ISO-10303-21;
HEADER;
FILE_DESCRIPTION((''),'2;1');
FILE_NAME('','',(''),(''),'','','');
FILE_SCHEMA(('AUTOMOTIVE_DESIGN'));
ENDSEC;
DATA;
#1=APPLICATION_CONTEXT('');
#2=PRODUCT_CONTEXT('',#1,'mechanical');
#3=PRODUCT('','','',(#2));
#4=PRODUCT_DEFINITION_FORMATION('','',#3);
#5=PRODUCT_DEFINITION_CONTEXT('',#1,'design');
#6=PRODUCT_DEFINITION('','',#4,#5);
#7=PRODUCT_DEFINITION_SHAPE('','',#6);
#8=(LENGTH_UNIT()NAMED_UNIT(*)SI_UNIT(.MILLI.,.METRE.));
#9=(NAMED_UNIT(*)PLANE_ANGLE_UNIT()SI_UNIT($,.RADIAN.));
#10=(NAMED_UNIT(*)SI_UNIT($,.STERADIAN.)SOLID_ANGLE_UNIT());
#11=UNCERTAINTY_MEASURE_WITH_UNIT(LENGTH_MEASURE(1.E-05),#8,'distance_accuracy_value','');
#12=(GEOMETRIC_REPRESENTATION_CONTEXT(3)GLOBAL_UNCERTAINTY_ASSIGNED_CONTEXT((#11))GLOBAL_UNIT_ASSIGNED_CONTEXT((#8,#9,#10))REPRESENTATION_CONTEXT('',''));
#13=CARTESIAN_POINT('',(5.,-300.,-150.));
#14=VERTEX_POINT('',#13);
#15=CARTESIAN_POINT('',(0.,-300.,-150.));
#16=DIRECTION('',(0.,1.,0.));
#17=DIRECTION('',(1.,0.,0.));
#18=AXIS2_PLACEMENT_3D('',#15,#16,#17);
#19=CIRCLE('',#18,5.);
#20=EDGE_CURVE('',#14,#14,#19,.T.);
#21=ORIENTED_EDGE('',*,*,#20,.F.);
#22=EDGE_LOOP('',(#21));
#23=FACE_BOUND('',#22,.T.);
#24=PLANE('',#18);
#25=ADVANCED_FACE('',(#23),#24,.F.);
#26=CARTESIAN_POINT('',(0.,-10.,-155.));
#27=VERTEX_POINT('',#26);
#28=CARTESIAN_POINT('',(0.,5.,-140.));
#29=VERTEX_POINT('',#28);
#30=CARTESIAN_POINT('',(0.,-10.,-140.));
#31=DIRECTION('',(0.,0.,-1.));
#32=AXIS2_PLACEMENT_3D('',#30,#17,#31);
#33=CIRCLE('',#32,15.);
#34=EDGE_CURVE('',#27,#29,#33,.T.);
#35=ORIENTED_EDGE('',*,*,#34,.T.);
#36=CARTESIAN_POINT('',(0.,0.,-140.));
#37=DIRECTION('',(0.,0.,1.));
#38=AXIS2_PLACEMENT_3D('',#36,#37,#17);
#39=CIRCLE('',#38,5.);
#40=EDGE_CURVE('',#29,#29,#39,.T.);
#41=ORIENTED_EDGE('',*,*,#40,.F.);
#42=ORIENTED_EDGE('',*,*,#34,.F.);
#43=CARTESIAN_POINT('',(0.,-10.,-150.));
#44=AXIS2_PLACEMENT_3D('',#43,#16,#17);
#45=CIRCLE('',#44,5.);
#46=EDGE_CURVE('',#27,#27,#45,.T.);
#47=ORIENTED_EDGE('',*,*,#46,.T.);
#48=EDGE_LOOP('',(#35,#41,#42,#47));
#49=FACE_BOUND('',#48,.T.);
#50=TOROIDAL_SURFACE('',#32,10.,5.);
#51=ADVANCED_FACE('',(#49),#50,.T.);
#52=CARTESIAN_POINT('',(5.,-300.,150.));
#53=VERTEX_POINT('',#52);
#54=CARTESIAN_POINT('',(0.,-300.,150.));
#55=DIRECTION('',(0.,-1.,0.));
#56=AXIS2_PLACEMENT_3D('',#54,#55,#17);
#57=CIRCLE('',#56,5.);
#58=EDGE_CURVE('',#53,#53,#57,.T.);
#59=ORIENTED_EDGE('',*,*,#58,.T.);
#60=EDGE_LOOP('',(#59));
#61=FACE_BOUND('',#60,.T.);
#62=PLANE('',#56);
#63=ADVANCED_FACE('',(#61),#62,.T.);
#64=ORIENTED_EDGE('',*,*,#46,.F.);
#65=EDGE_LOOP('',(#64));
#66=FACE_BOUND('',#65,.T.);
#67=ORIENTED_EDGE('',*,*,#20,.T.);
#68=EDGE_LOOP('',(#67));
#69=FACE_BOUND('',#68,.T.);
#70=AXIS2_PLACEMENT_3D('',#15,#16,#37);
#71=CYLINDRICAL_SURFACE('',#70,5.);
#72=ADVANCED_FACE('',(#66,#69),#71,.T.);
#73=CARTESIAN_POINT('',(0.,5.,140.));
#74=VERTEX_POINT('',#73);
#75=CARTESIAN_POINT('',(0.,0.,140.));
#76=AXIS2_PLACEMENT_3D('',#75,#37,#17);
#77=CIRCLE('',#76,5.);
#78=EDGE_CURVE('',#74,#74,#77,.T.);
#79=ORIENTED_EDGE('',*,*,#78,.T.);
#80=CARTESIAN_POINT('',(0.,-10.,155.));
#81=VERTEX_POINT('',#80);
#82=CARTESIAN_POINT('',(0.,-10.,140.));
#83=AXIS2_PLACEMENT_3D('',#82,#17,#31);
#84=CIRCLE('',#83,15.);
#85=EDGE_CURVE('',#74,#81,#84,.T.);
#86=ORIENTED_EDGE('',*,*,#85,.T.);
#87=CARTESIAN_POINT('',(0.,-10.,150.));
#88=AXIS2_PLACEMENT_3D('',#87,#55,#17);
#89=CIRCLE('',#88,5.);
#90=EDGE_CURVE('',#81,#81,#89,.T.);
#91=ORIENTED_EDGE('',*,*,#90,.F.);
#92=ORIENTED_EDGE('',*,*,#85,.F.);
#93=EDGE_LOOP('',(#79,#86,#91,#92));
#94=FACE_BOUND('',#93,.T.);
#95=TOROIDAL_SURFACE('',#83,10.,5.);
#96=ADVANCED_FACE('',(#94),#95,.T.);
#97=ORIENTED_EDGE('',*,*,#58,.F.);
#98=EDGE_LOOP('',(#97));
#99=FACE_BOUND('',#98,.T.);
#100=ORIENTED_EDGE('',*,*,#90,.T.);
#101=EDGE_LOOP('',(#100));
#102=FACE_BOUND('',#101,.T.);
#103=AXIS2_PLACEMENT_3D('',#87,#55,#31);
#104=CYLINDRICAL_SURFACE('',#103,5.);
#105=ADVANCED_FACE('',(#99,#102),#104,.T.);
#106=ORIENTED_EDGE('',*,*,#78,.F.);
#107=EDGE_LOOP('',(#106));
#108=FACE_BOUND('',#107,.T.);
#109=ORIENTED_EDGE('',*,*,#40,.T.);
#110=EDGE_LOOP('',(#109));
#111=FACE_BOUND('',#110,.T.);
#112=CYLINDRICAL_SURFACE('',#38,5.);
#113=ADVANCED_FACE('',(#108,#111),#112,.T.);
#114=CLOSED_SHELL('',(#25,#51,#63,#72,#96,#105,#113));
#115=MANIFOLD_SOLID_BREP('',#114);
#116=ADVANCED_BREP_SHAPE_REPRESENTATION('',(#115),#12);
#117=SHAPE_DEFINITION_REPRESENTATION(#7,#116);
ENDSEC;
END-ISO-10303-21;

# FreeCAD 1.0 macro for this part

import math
import FreeCAD as App
import Part
import Sketcher

V = App.Vector

doc = App.newDocument("Part")
params = doc.addObject("Spreadsheet::Sheet", "Params")
for row, (alias, value) in enumerate([
    ("sketch1_diameter", "10 mm"),
    ("sketch2_radius", "10 mm"),
    ("sketch2_width", "290 mm"),
    ("sketch2_height", "280 mm"),
], start=1):
    params.set(f"A{row}", alias)
    params.set(f"B{row}", "=" + value)
    params.setAlias(f"B{row}", alias)

body = doc.addObject("PartDesign::Body", "Body")

# Sketch on XY plane
sketch1 = doc.addObject("Sketcher::SketchObject", "Sketch")
body.addObject(sketch1)
sketch1.AttachmentSupport = (doc.XY_Plane, [""])
sketch1.MapMode = "FlatFace"
sketch1.addGeometry(Part.Circle(V(0, 0, 0), V(0, 0, 1), 5), False)
sketch1.addConstraint([
    Sketcher.Constraint("Coincident", 0, 3, -1, 1),
    Sketcher.Constraint("Diameter", 0, 10.0),
])
sketch1.setExpression("Constraints[1]", "Params.sketch1_diameter")

# Sketch on YZ plane
sketch2 = doc.addObject("Sketcher::SketchObject", "Sketch001")
body.addObject(sketch2)
sketch2.AttachmentSupport = (doc.YZ_Plane, [""])
sketch2.MapMode = "FlatFace"
sketch2.addGeometry([
    Part.LineSegment(V(-300, 150, 0), V(-10, 150, 0)),  # 0
    Part.ArcOfCircle(Part.Circle(V(-10, 140, 0), V(0, 0, 1), 10), math.radians(0), math.radians(90)),  # 1
    Part.LineSegment(V(0, 140, 0), V(0, -140, 0)),  # 2
    Part.ArcOfCircle(Part.Circle(V(-10, -140, 0), V(0, 0, 1), 10), math.radians(-90), math.radians(0)),  # 3
    Part.LineSegment(V(-10, -150, 0), V(-300, -150, 0)),  # 4
], False)
sketch2.addConstraint([
    Sketcher.Constraint("Tangent", 0, 2, 1, 2),
    Sketcher.Constraint("Tangent", 1, 1, 2, 1),
    Sketcher.Constraint("Tangent", 2, 2, 3, 2),
    Sketcher.Constraint("Tangent", 3, 1, 4, 1),
    Sketcher.Constraint("Horizontal", 0),
    Sketcher.Constraint("Vertical", 2),
    Sketcher.Constraint("Horizontal", 4),
    Sketcher.Constraint("Equal", 1, 3),
    Sketcher.Constraint("Symmetric", 1, 1, 2, 2, -1, 1),
    Sketcher.Constraint("Vertical", 0, 1, 4, 2),
    Sketcher.Constraint("Radius", 1, 10.0),
    Sketcher.Constraint("DistanceX", 0, 1, 0, 2, 290.0),
    Sketcher.Constraint("DistanceY", 2, 2, 2, 1, 280.0),
])
sketch2.setExpression("Constraints[10]", "Params.sketch2_radius")
sketch2.setExpression("Constraints[11]", "Params.sketch2_width")
sketch2.setExpression("Constraints[12]", "Params.sketch2_height")
doc.recompute()

additivepipe = doc.addObject("PartDesign::AdditivePipe", "AdditivePipe")
body.addObject(additivepipe)
additivepipe.Profile = sketch1
additivepipe.Spine = (sketch2, ["Edge1", "Edge2", "Edge3", "Edge4", "Edge5"])

doc.recompute()
